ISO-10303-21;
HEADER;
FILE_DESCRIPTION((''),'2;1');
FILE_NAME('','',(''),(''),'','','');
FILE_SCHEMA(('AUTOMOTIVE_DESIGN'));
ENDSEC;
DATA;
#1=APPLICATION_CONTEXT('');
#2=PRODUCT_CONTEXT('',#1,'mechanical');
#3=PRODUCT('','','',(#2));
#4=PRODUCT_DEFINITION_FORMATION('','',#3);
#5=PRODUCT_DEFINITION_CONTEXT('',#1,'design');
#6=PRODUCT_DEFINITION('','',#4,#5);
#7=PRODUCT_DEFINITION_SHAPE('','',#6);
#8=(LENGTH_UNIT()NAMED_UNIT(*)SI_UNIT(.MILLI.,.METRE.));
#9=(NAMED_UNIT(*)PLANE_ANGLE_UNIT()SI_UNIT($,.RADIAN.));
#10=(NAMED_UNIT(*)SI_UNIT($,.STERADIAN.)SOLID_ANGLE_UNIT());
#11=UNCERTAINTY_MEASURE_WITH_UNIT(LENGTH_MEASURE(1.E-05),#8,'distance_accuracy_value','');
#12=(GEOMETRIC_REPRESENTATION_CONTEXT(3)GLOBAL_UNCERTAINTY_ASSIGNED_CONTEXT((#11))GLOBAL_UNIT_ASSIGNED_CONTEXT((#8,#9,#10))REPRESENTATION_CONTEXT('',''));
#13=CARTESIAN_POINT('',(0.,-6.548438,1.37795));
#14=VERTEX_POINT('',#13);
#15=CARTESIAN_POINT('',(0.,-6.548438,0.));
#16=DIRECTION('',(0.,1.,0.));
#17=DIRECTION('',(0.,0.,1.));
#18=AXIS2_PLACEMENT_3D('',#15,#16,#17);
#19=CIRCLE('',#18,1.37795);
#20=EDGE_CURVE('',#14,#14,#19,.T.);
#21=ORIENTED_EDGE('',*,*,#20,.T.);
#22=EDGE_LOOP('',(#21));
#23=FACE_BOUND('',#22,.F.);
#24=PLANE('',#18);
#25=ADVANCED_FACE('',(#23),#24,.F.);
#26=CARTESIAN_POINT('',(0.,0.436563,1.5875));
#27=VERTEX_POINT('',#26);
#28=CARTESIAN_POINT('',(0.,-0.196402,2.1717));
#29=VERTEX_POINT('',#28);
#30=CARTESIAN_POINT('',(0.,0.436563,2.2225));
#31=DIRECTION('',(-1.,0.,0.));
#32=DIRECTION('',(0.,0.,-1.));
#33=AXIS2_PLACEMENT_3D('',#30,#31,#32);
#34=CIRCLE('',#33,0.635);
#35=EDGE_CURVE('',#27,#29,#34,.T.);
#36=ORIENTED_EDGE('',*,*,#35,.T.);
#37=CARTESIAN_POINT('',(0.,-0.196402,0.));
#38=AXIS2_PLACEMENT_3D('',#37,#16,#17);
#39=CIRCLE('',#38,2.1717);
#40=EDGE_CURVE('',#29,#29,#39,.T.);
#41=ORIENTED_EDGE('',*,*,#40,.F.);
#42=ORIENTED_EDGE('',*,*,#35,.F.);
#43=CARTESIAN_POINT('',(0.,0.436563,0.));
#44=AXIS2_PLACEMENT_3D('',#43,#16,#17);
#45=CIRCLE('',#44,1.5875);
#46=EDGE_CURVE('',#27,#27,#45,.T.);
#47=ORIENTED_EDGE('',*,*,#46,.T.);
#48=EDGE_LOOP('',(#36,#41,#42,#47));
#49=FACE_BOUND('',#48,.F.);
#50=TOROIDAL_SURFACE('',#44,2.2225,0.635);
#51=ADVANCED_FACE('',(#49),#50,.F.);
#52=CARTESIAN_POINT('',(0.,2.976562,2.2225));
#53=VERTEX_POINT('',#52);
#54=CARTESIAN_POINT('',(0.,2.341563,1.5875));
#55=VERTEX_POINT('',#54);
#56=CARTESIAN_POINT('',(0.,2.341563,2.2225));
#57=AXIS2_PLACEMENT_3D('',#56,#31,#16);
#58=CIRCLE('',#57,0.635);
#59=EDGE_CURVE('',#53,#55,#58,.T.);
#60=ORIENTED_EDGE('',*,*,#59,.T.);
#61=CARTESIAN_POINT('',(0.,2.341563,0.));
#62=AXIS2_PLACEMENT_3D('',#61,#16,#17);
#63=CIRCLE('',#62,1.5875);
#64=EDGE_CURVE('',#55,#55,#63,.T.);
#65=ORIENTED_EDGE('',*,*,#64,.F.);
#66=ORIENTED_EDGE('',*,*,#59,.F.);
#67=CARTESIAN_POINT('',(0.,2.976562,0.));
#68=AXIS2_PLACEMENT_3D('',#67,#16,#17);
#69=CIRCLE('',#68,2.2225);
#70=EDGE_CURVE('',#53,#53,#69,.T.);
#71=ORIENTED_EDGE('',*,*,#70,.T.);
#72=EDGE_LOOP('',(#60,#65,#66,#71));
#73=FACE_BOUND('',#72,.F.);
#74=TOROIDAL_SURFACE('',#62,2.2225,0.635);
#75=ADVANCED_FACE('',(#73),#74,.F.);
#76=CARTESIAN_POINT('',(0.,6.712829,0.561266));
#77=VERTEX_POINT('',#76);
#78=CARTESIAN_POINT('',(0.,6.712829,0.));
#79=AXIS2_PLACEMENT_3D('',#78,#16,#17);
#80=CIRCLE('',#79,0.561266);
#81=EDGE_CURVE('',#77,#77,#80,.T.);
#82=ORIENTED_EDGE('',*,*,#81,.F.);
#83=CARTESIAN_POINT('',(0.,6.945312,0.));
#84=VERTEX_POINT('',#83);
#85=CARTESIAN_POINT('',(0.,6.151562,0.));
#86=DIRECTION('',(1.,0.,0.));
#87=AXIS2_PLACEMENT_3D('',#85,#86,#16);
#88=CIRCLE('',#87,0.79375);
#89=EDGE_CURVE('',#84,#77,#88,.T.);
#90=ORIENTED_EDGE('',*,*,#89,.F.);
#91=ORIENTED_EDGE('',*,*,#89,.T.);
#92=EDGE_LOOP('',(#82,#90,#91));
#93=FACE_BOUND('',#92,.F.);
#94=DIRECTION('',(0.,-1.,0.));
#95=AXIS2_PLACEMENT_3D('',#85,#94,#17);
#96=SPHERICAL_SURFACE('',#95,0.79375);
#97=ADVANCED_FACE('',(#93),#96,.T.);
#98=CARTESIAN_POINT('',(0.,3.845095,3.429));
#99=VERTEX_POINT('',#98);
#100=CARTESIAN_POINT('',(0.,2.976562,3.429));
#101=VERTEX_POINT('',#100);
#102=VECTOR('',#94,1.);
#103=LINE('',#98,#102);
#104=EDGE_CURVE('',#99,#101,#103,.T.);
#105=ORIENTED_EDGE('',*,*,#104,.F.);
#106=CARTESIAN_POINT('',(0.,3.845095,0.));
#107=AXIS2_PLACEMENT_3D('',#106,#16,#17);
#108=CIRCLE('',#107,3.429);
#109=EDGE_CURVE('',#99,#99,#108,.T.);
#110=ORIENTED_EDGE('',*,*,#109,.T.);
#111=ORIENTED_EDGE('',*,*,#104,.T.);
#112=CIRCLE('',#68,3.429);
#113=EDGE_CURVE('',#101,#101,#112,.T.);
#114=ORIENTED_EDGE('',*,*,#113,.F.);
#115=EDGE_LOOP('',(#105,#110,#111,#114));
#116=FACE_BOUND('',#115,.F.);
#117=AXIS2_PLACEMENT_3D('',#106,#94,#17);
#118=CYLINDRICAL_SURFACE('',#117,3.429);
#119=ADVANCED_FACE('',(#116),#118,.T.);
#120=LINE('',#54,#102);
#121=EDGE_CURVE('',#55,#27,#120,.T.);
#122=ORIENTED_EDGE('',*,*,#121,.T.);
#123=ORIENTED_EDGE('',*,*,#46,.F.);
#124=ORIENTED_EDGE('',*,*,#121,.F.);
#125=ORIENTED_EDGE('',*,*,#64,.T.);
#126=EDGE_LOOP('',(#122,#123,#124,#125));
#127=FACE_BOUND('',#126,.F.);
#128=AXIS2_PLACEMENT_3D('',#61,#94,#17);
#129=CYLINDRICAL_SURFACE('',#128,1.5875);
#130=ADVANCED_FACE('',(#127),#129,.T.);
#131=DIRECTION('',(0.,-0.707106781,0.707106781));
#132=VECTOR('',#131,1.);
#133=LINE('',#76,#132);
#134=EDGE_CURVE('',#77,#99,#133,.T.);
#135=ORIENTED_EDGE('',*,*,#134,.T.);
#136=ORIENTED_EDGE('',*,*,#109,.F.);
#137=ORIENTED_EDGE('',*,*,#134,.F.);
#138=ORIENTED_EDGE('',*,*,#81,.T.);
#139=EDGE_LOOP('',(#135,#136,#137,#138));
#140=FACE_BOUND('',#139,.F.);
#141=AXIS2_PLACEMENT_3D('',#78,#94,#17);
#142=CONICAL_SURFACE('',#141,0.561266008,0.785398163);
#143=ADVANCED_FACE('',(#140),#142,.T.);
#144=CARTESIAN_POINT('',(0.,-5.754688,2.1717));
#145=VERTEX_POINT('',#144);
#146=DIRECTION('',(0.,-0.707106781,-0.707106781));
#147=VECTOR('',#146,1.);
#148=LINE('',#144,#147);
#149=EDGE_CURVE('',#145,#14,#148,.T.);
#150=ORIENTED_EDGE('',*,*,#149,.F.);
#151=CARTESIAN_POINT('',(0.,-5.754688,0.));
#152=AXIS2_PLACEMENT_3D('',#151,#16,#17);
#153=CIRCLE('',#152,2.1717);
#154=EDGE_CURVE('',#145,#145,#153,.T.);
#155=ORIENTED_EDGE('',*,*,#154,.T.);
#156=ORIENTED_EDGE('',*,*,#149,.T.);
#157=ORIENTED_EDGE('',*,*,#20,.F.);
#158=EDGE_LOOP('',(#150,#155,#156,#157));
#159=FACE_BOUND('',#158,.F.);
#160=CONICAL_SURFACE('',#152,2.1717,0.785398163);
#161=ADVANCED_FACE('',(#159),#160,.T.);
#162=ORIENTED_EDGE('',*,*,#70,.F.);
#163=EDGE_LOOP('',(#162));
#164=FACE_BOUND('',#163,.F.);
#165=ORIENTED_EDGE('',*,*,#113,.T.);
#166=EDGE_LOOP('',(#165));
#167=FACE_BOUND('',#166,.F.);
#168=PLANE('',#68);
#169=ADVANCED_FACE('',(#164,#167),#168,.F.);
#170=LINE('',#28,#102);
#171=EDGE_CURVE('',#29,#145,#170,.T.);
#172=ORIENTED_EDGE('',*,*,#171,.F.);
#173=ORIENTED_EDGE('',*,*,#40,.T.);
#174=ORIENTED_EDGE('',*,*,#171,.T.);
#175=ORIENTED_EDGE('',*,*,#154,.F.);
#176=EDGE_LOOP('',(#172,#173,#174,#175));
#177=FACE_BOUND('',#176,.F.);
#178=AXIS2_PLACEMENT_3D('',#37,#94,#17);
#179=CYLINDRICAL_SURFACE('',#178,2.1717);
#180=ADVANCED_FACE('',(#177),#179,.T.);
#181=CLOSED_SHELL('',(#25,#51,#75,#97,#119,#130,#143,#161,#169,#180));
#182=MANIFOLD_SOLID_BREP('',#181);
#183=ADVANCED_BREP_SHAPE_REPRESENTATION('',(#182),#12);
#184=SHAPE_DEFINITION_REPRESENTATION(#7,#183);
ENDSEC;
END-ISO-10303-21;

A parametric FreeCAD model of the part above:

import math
import FreeCAD as App
import Part
import Sketcher

V = App.Vector
Q = App.Units.Quantity

doc = App.newDocument("Part")
body = doc.addObject("PartDesign::Body", "Body")

sketch1 = doc.addObject("Sketcher::SketchObject", "Sketch")
body.addObject(sketch1)
sketch1.AttachmentSupport = (doc.YZ_Plane, [""])
sketch1.MapMode = "FlatFace"
sketch1.addGeometry(Part.LineSegment(V(3.8, 3.4, 0), V(3, 3.4, 0)), False)
sketch1.addGeometry(Part.LineSegment(V(3, 3.4, 0), V(3, 2.2, 0)), False)
sketch1.addGeometry(Part.ArcOfCircle(Part.Circle(V(2.3, 2.2, 0), V(0, 0, 1), 0.6), math.radians(-90), math.radians(0)), False)
sketch1.addGeometry(Part.LineSegment(V(2.3, 1.6, 0), V(0.4, 1.6, 0)), False)
sketch1.addGeometry(Part.ArcOfCircle(Part.Circle(V(0.4, 2.2, 0), V(0, 0, 1), 0.6), math.radians(-175), math.radians(-90)), False)
sketch1.addGeometry(Part.LineSegment(V(-0.2, 2.2, 0), V(-5.8, 2.2, 0)), False)
sketch1.addGeometry(Part.LineSegment(V(-5.8, 2.2, 0), V(-6.5, 1.4, 0)), False)
sketch1.addGeometry(Part.LineSegment(V(-6.5, 1.4, 0), V(-6.5, 0, 0)), False)
sketch1.addGeometry(Part.LineSegment(V(-6.5, 0, 0), V(6.9, 0, 0)), False)
sketch1.addGeometry(Part.ArcOfCircle(Part.Circle(V(6.2, 0, 0), V(0, 0, 1), 0.8), math.radians(0), math.radians(45)), False)
sketch1.addGeometry(Part.LineSegment(V(6.7, 0.6, 0), V(3.8, 3.4, 0)), False)
sketch1.addConstraint(Sketcher.Constraint("Coincident", 0, 2, 1, 1))
sketch1.addConstraint(Sketcher.Constraint("Tangent", 1, 2, 2, 2))
sketch1.addConstraint(Sketcher.Constraint("Tangent", 2, 1, 3, 1))
sketch1.addConstraint(Sketcher.Constraint("Tangent", 3, 2, 4, 2))
sketch1.addConstraint(Sketcher.Constraint("Coincident", 4, 1, 5, 1))
sketch1.addConstraint(Sketcher.Constraint("Coincident", 5, 2, 6, 1))
sketch1.addConstraint(Sketcher.Constraint("Coincident", 6, 2, 7, 1))
sketch1.addConstraint(Sketcher.Constraint("Coincident", 7, 2, 8, 1))
sketch1.addConstraint(Sketcher.Constraint("Coincident", 8, 2, 9, 1))
sketch1.addConstraint(Sketcher.Constraint("Tangent", 9, 2, 10, 1))
sketch1.addConstraint(Sketcher.Constraint("Coincident", 10, 2, 0, 1))
sketch1.addConstraint(Sketcher.Constraint("Horizontal", 0))
sketch1.addConstraint(Sketcher.Constraint("Vertical", 1))
sketch1.addConstraint(Sketcher.Constraint("Horizontal", 3))
sketch1.addConstraint(Sketcher.Constraint("Horizontal", 5))
sketch1.addConstraint(Sketcher.Constraint("Vertical", 7))
sketch1.addConstraint(Sketcher.Constraint("Horizontal", 8))
sketch1.addConstraint(Sketcher.Constraint("Equal", 2, 4))
sketch1.addConstraint(Sketcher.Constraint("PointOnObject", 9, 3, -1))
sketch1.addConstraint(Sketcher.Constraint("PointOnObject", 7, 2, -1))
sketch1.addConstraint(Sketcher.Constraint("Perpendicular", 6, 10))
sketch1.addConstraint(Sketcher.Constraint("Angle", 6, Q("-135 deg")))
sketch1.addConstraint(Sketcher.Constraint("Radius", 2, Q("0.025 in")))
sketch1.addConstraint(Sketcher.Constraint("Radius", 9, Q("0.03125 in")))
sketch1.addConstraint(Sketcher.Constraint("DistanceX", 4, 3, 0, 2, Q("0.1 in")))
sketch1.addConstraint(Sketcher.Constraint("DistanceX", 8, 1, 8, 2, Q("0.53125 in")))
sketch1.addConstraint(Sketcher.Constraint("DistanceX", 2, 3, 9, 3, Q("0.15 in")))
sketch1.addConstraint(Sketcher.Constraint("DistanceY", 1, 2, 1, 1, Q("0.0475 in")))
sketch1.addConstraint(Sketcher.Constraint("DistanceY", -1, 1, 0, 2, Q("0.135 in")))
sketch1.addConstraint(Sketcher.Constraint("DistanceY", 4, 1, 4, 3, Q("0.002 in")))
sketch1.addConstraint(Sketcher.Constraint("DistanceX", 6, 2, 5, 2, Q("0.03125 in")))
sketch1.addConstraint(Sketcher.Constraint("DistanceX", -1, 1, 9, 2, Q("6.712829 mm")))
revolution = doc.addObject("PartDesign::Revolution", "Revolution")
body.addObject(revolution)
revolution.Profile = sketch1
revolution.ReferenceAxis = (sketch1, ["H_Axis"])
revolution.Angle = 360

doc.recompute()
